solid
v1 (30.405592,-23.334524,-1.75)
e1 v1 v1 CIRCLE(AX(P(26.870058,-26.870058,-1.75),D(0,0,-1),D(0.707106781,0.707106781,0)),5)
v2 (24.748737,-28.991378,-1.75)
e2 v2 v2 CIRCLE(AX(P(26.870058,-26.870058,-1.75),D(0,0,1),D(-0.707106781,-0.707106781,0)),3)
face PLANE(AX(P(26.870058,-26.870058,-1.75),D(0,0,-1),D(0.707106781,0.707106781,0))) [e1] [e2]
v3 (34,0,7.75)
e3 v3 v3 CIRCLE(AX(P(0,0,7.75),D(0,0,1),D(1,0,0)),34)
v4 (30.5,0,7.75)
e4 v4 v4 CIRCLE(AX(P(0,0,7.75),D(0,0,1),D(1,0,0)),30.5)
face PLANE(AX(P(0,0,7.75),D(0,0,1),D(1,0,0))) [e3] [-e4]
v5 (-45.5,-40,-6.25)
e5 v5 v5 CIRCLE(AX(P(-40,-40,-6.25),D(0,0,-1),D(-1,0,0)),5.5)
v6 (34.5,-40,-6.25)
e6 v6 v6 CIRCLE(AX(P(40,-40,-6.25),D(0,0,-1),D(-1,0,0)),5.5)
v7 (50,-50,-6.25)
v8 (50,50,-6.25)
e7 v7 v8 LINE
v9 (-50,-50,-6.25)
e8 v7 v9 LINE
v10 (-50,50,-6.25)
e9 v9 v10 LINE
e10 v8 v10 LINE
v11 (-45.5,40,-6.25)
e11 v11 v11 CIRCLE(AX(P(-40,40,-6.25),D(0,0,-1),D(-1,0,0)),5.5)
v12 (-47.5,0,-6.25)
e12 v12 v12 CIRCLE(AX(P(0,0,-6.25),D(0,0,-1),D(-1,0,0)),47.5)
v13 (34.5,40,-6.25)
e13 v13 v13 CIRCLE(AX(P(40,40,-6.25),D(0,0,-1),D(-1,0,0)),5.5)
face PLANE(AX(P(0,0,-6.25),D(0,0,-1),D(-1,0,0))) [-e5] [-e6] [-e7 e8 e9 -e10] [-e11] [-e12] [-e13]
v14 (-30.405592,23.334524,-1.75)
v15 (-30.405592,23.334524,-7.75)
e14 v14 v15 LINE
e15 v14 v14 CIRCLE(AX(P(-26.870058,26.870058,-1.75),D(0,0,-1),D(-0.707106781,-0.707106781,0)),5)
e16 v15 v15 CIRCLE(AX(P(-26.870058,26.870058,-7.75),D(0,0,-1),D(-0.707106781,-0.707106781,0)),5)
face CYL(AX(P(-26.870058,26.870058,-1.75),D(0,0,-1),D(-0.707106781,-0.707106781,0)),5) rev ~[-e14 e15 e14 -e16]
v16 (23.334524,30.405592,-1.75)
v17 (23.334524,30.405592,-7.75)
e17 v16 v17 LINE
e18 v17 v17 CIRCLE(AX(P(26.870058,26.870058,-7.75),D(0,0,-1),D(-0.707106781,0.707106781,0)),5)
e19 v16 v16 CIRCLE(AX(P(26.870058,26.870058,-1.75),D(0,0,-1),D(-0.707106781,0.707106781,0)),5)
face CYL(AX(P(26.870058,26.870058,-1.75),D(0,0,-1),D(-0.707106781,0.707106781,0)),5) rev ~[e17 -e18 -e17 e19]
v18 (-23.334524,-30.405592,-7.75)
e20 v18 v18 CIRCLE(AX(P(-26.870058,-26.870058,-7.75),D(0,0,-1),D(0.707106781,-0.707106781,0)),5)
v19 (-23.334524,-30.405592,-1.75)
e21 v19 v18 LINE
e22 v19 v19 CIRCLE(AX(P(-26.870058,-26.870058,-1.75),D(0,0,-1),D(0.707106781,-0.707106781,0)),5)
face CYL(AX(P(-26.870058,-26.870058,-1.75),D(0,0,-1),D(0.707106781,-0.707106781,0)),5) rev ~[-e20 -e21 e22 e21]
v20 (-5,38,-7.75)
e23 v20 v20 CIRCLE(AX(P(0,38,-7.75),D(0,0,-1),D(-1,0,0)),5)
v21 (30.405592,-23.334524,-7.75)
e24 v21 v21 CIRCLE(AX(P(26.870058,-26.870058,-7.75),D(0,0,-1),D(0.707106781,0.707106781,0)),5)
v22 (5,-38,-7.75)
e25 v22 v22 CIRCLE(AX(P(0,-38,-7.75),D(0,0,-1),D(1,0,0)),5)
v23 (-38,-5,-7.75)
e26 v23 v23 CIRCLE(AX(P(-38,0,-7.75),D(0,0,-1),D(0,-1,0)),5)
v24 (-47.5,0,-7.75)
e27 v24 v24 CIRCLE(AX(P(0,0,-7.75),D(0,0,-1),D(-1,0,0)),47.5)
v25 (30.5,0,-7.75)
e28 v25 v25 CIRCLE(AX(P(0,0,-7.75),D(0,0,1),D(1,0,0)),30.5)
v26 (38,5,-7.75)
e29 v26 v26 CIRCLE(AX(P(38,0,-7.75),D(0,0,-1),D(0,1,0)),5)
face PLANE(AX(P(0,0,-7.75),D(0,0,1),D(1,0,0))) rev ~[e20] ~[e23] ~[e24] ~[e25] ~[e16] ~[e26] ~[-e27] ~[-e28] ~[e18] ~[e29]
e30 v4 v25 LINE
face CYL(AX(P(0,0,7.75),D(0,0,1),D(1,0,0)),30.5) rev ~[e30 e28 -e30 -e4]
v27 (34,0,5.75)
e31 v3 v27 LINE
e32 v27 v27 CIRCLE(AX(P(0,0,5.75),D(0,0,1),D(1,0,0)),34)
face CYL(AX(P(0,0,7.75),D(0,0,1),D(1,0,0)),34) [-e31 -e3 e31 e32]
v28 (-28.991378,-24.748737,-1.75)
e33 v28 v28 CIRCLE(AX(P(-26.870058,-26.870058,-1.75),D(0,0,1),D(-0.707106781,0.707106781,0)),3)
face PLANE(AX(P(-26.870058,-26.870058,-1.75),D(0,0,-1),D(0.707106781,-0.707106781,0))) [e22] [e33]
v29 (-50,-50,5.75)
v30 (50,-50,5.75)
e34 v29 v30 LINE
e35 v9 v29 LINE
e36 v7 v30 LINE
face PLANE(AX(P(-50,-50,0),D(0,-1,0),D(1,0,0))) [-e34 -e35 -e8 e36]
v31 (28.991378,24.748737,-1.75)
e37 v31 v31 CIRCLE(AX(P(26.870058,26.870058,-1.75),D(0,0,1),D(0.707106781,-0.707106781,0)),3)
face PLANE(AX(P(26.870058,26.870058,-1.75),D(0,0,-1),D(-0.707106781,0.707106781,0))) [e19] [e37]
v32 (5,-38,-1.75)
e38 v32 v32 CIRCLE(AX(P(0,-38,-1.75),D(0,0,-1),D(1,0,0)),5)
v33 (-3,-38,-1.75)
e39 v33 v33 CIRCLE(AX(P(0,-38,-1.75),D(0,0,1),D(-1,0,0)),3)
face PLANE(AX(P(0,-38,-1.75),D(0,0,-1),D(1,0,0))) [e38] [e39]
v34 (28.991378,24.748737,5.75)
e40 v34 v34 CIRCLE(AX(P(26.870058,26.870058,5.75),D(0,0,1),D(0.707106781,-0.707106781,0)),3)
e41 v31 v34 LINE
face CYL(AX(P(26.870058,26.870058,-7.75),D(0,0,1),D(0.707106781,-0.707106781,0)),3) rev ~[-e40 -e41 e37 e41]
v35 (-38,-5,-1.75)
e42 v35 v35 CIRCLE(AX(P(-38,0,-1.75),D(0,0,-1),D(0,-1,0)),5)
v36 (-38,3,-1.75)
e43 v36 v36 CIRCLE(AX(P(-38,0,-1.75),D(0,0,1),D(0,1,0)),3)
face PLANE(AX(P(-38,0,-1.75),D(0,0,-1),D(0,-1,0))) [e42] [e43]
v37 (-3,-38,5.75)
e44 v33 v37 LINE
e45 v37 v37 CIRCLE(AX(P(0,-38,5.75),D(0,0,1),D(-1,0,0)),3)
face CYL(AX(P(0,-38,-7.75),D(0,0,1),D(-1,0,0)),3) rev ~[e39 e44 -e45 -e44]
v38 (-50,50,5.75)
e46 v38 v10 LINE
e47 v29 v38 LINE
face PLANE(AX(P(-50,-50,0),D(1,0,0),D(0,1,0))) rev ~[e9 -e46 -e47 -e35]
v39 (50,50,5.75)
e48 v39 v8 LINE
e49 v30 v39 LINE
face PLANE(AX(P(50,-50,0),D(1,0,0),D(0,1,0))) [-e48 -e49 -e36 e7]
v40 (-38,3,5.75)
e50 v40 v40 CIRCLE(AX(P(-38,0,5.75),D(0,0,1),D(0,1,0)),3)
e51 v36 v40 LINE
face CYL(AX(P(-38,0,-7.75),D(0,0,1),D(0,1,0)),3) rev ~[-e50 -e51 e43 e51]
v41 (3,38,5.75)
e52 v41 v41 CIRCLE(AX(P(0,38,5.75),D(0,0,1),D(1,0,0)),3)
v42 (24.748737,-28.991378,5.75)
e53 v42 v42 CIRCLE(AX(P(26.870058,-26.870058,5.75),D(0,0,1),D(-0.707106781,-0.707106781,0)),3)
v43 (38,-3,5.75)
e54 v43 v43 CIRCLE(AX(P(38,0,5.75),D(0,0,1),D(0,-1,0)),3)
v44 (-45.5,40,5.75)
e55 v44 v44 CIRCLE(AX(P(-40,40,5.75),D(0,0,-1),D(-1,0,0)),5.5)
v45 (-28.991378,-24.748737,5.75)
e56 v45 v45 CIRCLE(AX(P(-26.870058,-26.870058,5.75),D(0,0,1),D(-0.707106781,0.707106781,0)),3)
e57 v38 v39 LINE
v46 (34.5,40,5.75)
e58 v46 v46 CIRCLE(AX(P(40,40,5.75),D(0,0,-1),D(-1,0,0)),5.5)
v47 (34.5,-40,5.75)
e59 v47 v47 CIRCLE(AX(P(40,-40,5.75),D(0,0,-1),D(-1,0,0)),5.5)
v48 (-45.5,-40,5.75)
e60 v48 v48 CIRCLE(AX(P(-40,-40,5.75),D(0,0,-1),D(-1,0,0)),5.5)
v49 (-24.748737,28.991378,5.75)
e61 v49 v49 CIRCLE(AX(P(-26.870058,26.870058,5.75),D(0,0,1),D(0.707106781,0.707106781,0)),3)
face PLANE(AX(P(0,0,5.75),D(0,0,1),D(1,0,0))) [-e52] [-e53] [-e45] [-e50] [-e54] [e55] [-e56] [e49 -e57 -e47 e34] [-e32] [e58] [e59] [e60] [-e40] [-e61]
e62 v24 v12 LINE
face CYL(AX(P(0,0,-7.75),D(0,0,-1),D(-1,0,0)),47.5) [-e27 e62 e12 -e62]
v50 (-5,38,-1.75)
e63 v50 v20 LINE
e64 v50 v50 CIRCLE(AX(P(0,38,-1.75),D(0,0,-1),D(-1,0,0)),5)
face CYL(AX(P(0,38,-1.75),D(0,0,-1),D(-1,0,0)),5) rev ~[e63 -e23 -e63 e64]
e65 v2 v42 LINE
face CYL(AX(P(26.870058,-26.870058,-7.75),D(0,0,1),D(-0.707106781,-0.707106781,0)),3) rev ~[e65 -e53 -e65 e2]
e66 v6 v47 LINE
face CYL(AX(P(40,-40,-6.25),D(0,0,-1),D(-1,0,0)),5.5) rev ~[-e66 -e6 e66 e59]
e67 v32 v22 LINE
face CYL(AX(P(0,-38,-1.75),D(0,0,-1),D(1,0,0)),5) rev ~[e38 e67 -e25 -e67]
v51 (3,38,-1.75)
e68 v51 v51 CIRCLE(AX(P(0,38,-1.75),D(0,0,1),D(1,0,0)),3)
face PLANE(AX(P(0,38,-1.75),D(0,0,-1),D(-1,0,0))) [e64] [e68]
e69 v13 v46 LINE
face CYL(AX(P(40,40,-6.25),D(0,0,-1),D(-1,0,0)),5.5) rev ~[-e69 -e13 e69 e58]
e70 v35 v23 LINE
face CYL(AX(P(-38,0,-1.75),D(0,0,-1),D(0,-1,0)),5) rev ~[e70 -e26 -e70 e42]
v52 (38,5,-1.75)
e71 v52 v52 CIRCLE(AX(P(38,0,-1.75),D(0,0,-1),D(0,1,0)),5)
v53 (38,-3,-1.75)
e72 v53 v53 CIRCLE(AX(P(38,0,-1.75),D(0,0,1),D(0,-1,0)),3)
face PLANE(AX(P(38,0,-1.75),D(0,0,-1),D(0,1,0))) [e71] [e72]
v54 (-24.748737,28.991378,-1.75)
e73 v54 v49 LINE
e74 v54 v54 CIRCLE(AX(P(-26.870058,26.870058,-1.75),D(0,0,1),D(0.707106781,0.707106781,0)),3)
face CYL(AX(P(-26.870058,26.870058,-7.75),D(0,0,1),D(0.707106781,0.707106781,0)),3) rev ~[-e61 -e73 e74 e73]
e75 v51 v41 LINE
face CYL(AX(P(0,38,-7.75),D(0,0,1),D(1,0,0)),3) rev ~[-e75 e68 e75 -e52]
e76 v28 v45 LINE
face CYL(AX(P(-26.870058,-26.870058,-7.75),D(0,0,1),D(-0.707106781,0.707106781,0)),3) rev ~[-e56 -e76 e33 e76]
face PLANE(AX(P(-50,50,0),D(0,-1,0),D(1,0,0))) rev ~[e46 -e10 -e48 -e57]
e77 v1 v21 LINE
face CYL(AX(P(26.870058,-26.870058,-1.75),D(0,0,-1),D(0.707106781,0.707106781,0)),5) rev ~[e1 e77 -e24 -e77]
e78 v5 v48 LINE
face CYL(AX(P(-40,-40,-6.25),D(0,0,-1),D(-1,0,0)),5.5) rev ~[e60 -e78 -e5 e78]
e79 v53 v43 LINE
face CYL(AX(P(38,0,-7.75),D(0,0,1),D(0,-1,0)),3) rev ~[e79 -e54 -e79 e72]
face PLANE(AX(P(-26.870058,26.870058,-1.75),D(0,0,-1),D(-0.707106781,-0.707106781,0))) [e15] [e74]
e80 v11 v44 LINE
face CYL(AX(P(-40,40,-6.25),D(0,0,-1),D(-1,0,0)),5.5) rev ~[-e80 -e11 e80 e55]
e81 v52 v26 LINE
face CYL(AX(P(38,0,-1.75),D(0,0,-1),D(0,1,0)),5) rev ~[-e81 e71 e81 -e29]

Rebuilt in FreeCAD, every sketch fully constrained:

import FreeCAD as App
import Part
import Sketcher

V = App.Vector
Q = App.Units.Quantity

doc = App.newDocument("Part")
body = doc.addObject("PartDesign::Body", "Body")

sketch1 = body.newObject("Sketcher::SketchObject", "Sketch")
sketch1.AttachmentSupport = (doc.getObject("XY_Plane"), [""])
sketch1.MapMode = "FlatFace"
sketch1.addGeometry(Part.LineSegment(V(-50, 50, 0), V(-50, -50, 0)), False)
sketch1.addGeometry(Part.LineSegment(V(-50, -50, 0), V(50, -50, 0)), False)
sketch1.addGeometry(Part.LineSegment(V(50, -50, 0), V(50, 50, 0)), False)
sketch1.addGeometry(Part.LineSegment(V(50, 50, 0), V(-50, 50, 0)), False)
sketch1.addConstraint(Sketcher.Constraint("Coincident", 0, 2, 1, 1))
sketch1.addConstraint(Sketcher.Constraint("Coincident", 1, 2, 2, 1))
sketch1.addConstraint(Sketcher.Constraint("Coincident", 2, 2, 3, 1))
sketch1.addConstraint(Sketcher.Constraint("Coincident", 3, 2, 0, 1))
sketch1.addConstraint(Sketcher.Constraint("Vertical", 0))
sketch1.addConstraint(Sketcher.Constraint("Horizontal", 1))
sketch1.addConstraint(Sketcher.Constraint("Vertical", 2))
sketch1.addConstraint(Sketcher.Constraint("Horizontal", 3))
sketch1.addConstraint(Sketcher.Constraint("Symmetric", 0, 2, 2, 2, -1, 1))
sketch1.addConstraint(Sketcher.Constraint("Equal", 3, 0))
sketch1.addConstraint(Sketcher.Constraint("DistanceX", 1, 1, 1, 2, Q("100 mm")))
pad1 = body.newObject("PartDesign::Pad", "Pad")
pad1.Profile = sketch1
pad1.Length = 15.5
pad1.Midplane = True

sketch2 = body.newObject("Sketcher::SketchObject", "Sketch001")
sketch2.AttachmentSupport = (doc.getObject("XY_Plane"), [""])
sketch2.MapMode = "FlatFace"
sketch2.AttachmentOffset = App.Placement(V(0, 0, 7.75), App.Rotation())
sketch2.addGeometry(Part.Circle(V(0, 0, 0), V(0, 0, 1), 30), False)
sketch2.addConstraint(Sketcher.Constraint("Coincident", 0, 3, -1, 1))
sketch2.addConstraint(Sketcher.Constraint("Diameter", 0, Q("61 mm")))
pocket1 = body.newObject("PartDesign::Pocket", "Pocket")
pocket1.Profile = sketch2
pocket1.Length = 17

sketch3 = body.newObject("Sketcher::SketchObject", "Sketch002")
sketch3.AttachmentSupport = (doc.getObject("XY_Plane"), [""])
sketch3.MapMode = "FlatFace"
sketch3.AttachmentOffset = App.Placement(V(0, 0, 7.75), App.Rotation())
sketch3.addGeometry(Part.LineSegment(V(-50, 50, 0), V(-50, -50, 0)), False)
sketch3.addGeometry(Part.LineSegment(V(-50, -50, 0), V(50, -50, 0)), False)
sketch3.addGeometry(Part.LineSegment(V(50, -50, 0), V(50, 50, 0)), False)
sketch3.addGeometry(Part.LineSegment(V(50, 50, 0), V(-50, 50, 0)), False)
sketch3.addGeometry(Part.Circle(V(0, 0, 0), V(0, 0, 1), 34), False)
sketch3.addConstraint(Sketcher.Constraint("Coincident", 0, 2, 1, 1))
sketch3.addConstraint(Sketcher.Constraint("Coincident", 1, 2, 2, 1))
sketch3.addConstraint(Sketcher.Constraint("Coincident", 2, 2, 3, 1))
sketch3.addConstraint(Sketcher.Constraint("Coincident", 3, 2, 0, 1))
sketch3.addConstraint(Sketcher.Constraint("Vertical", 0))
sketch3.addConstraint(Sketcher.Constraint("Horizontal", 1))
sketch3.addConstraint(Sketcher.Constraint("Vertical", 2))
sketch3.addConstraint(Sketcher.Constraint("Horizontal", 3))
sketch3.addConstraint(Sketcher.Constraint("Coincident", 4, 3, -1, 1))
sketch3.addConstraint(Sketcher.Constraint("Symmetric", 0, 2, 2, 2, -1, 1))
sketch3.addConstraint(Sketcher.Constraint("Equal", 3, 0))
sketch3.addConstraint(Sketcher.Constraint("Diameter", 4, Q("68 mm")))
sketch3.addConstraint(Sketcher.Constraint("DistanceX", 1, 1, 1, 2, Q("100 mm")))
pocket2 = body.newObject("PartDesign::Pocket", "Pocket001")
pocket2.Profile = sketch3
pocket2.Length = 2

sketch4 = body.newObject("Sketcher::SketchObject", "Sketch003")
sketch4.AttachmentSupport = (doc.getObject("XY_Plane"), [""])
sketch4.MapMode = "FlatFace"
sketch4.AttachmentOffset = App.Placement(V(0, 0, -7.75), App.Rotation())
sketch4.addGeometry(Part.LineSegment(V(50, 50, 0), V(50, -50, 0)), False)
sketch4.addGeometry(Part.LineSegment(V(50, -50, 0), V(-50, -50, 0)), False)
sketch4.addGeometry(Part.LineSegment(V(-50, -50, 0), V(-50, 50, 0)), False)
sketch4.addGeometry(Part.LineSegment(V(-50, 50, 0), V(50, 50, 0)), False)
sketch4.addGeometry(Part.Circle(V(0, 0, 0), V(0, 0, 1), 48), False)
sketch4.addConstraint(Sketcher.Constraint("Coincident", 0, 2, 1, 1))
sketch4.addConstraint(Sketcher.Constraint("Coincident", 1, 2, 2, 1))
sketch4.addConstraint(Sketcher.Constraint("Coincident", 2, 2, 3, 1))
sketch4.addConstraint(Sketcher.Constraint("Coincident", 3, 2, 0, 1))
sketch4.addConstraint(Sketcher.Constraint("Vertical", 0))
sketch4.addConstraint(Sketcher.Constraint("Horizontal", 1))
sketch4.addConstraint(Sketcher.Constraint("Vertical", 2))
sketch4.addConstraint(Sketcher.Constraint("Horizontal", 3))
sketch4.addConstraint(Sketcher.Constraint("Coincident", 4, 3, -1, 1))
sketch4.addConstraint(Sketcher.Constraint("Symmetric", 0, 2, 2, 2, -1, 1))
sketch4.addConstraint(Sketcher.Constraint("Equal", 3, 0))
sketch4.addConstraint(Sketcher.Constraint("Diameter", 4, Q("95 mm")))
sketch4.addConstraint(Sketcher.Constraint("DistanceX", 1, 2, 1, 1, Q("100 mm")))
pocket3 = body.newObject("PartDesign::Pocket", "Pocket002")
pocket3.Profile = sketch4
pocket3.Length = 1.5
pocket3.Reversed = True

sketch5 = body.newObject("Sketcher::SketchObject", "Sketch004")
sketch5.AttachmentSupport = (doc.getObject("XY_Plane"), [""])
sketch5.MapMode = "FlatFace"
sketch5.AttachmentOffset = App.Placement(V(0, 0, -7.75), App.Rotation())
sketch5.addGeometry(Part.Circle(V(0, 38, 0), V(0, 0, 1), 3), False)
sketch5.addConstraint(Sketcher.Constraint("PointOnObject", 0, 3, -2))
sketch5.addConstraint(Sketcher.Constraint("Diameter", 0, Q("6 mm")))
sketch5.addConstraint(Sketcher.Constraint("DistanceY", -1, 1, 0, 3, Q("38 mm")))
doc.recompute()
hole = body.newObject("PartDesign::Hole", "Hole")
hole.Profile = sketch5
hole.ThreadType = "None"
hole.Diameter = 6
hole.DepthType = "ThroughAll"
hole.HoleCutType = "Counterbore"
hole.HoleCutDiameter = 10
hole.HoleCutDepth = 6
hole.Reversed = True
doc.recompute()

polarpattern = body.newObject("PartDesign::PolarPattern", "PolarPattern")
polarpattern.Originals = [hole]
polarpattern.Axis = (doc.getObject("Z_Axis"), [""])
polarpattern.Angle = 360
polarpattern.Occurrences = 8
body.Tip = polarpattern

sketch6 = body.newObject("Sketcher::SketchObject", "Sketch005")
sketch6.AttachmentSupport = (doc.getObject("XY_Plane"), [""])
sketch6.MapMode = "FlatFace"
sketch6.AttachmentOffset = App.Placement(V(0, 0, -6.25), App.Rotation())
sketch6.addGeometry(Part.Circle(V(-40, 40, 0), V(0, 0, 1), 6), False)
sketch6.addConstraint(Sketcher.Constraint("Diameter", 0, Q("11 mm")))
sketch6.addConstraint(Sketcher.Constraint("DistanceX", 0, 3, -1, 1, Q("40 mm")))
sketch6.addConstraint(Sketcher.Constraint("DistanceY", -1, 1, 0, 3, Q("40 mm")))
pocket4 = body.newObject("PartDesign::Pocket", "Pocket003")
pocket4.Profile = sketch6
pocket4.Type = "UpToFirst"
pocket4.Reversed = True

sketch7 = body.newObject("Sketcher::SketchObject", "Sketch006")
sketch7.AttachmentSupport = (doc.getObject("XY_Plane"), [""])
sketch7.MapMode = "FlatFace"
sketch7.AttachmentOffset = App.Placement(V(0, 0, -6.25), App.Rotation())
sketch7.addGeometry(Part.Circle(V(-40, -40, 0), V(0, 0, 1), 6), False)
sketch7.addConstraint(Sketcher.Constraint("Diameter", 0, Q("11 mm")))
sketch7.addConstraint(Sketcher.Constraint("DistanceX", 0, 3, -1, 1, Q("40 mm")))
sketch7.addConstraint(Sketcher.Constraint("DistanceY", 0, 3, -1, 1, Q("40 mm")))
pocket5 = body.newObject("PartDesign::Pocket", "Pocket004")
pocket5.Profile = sketch7
pocket5.Type = "UpToFirst"
pocket5.Reversed = True

sketch8 = body.newObject("Sketcher::SketchObject", "Sketch007")
sketch8.AttachmentSupport = (doc.getObject("XY_Plane"), [""])
sketch8.MapMode = "FlatFace"
sketch8.AttachmentOffset = App.Placement(V(0, 0, -6.25), App.Rotation())
sketch8.addGeometry(Part.Circle(V(40, -40, 0), V(0, 0, 1), 6), False)
sketch8.addConstraint(Sketcher.Constraint("Diameter", 0, Q("11 mm")))
sketch8.addConstraint(Sketcher.Constraint("DistanceX", -1, 1, 0, 3, Q("40 mm")))
sketch8.addConstraint(Sketcher.Constraint("DistanceY", 0, 3, -1, 1, Q("40 mm")))
pocket6 = body.newObject("PartDesign::Pocket", "Pocket005")
pocket6.Profile = sketch8
pocket6.Type = "UpToFirst"
pocket6.Reversed = True

sketch9 = body.newObject("Sketcher::SketchObject", "Sketch008")
sketch9.AttachmentSupport = (doc.getObject("XY_Plane"), [""])
sketch9.MapMode = "FlatFace"
sketch9.AttachmentOffset = App.Placement(V(0, 0, -6.25), App.Rotation())
sketch9.addGeometry(Part.Circle(V(40, 40, 0), V(0, 0, 1), 6), False)
sketch9.addConstraint(Sketcher.Constraint("Diameter", 0, Q("11 mm")))
sketch9.addConstraint(Sketcher.Constraint("DistanceX", -1, 1, 0, 3, Q("40 mm")))
sketch9.addConstraint(Sketcher.Constraint("DistanceY", -1, 1, 0, 3, Q("40 mm")))
pocket7 = body.newObject("PartDesign::Pocket", "Pocket006")
pocket7.Profile = sketch9
pocket7.Type = "UpToFirst"
pocket7.Reversed = True

doc.recompute()
